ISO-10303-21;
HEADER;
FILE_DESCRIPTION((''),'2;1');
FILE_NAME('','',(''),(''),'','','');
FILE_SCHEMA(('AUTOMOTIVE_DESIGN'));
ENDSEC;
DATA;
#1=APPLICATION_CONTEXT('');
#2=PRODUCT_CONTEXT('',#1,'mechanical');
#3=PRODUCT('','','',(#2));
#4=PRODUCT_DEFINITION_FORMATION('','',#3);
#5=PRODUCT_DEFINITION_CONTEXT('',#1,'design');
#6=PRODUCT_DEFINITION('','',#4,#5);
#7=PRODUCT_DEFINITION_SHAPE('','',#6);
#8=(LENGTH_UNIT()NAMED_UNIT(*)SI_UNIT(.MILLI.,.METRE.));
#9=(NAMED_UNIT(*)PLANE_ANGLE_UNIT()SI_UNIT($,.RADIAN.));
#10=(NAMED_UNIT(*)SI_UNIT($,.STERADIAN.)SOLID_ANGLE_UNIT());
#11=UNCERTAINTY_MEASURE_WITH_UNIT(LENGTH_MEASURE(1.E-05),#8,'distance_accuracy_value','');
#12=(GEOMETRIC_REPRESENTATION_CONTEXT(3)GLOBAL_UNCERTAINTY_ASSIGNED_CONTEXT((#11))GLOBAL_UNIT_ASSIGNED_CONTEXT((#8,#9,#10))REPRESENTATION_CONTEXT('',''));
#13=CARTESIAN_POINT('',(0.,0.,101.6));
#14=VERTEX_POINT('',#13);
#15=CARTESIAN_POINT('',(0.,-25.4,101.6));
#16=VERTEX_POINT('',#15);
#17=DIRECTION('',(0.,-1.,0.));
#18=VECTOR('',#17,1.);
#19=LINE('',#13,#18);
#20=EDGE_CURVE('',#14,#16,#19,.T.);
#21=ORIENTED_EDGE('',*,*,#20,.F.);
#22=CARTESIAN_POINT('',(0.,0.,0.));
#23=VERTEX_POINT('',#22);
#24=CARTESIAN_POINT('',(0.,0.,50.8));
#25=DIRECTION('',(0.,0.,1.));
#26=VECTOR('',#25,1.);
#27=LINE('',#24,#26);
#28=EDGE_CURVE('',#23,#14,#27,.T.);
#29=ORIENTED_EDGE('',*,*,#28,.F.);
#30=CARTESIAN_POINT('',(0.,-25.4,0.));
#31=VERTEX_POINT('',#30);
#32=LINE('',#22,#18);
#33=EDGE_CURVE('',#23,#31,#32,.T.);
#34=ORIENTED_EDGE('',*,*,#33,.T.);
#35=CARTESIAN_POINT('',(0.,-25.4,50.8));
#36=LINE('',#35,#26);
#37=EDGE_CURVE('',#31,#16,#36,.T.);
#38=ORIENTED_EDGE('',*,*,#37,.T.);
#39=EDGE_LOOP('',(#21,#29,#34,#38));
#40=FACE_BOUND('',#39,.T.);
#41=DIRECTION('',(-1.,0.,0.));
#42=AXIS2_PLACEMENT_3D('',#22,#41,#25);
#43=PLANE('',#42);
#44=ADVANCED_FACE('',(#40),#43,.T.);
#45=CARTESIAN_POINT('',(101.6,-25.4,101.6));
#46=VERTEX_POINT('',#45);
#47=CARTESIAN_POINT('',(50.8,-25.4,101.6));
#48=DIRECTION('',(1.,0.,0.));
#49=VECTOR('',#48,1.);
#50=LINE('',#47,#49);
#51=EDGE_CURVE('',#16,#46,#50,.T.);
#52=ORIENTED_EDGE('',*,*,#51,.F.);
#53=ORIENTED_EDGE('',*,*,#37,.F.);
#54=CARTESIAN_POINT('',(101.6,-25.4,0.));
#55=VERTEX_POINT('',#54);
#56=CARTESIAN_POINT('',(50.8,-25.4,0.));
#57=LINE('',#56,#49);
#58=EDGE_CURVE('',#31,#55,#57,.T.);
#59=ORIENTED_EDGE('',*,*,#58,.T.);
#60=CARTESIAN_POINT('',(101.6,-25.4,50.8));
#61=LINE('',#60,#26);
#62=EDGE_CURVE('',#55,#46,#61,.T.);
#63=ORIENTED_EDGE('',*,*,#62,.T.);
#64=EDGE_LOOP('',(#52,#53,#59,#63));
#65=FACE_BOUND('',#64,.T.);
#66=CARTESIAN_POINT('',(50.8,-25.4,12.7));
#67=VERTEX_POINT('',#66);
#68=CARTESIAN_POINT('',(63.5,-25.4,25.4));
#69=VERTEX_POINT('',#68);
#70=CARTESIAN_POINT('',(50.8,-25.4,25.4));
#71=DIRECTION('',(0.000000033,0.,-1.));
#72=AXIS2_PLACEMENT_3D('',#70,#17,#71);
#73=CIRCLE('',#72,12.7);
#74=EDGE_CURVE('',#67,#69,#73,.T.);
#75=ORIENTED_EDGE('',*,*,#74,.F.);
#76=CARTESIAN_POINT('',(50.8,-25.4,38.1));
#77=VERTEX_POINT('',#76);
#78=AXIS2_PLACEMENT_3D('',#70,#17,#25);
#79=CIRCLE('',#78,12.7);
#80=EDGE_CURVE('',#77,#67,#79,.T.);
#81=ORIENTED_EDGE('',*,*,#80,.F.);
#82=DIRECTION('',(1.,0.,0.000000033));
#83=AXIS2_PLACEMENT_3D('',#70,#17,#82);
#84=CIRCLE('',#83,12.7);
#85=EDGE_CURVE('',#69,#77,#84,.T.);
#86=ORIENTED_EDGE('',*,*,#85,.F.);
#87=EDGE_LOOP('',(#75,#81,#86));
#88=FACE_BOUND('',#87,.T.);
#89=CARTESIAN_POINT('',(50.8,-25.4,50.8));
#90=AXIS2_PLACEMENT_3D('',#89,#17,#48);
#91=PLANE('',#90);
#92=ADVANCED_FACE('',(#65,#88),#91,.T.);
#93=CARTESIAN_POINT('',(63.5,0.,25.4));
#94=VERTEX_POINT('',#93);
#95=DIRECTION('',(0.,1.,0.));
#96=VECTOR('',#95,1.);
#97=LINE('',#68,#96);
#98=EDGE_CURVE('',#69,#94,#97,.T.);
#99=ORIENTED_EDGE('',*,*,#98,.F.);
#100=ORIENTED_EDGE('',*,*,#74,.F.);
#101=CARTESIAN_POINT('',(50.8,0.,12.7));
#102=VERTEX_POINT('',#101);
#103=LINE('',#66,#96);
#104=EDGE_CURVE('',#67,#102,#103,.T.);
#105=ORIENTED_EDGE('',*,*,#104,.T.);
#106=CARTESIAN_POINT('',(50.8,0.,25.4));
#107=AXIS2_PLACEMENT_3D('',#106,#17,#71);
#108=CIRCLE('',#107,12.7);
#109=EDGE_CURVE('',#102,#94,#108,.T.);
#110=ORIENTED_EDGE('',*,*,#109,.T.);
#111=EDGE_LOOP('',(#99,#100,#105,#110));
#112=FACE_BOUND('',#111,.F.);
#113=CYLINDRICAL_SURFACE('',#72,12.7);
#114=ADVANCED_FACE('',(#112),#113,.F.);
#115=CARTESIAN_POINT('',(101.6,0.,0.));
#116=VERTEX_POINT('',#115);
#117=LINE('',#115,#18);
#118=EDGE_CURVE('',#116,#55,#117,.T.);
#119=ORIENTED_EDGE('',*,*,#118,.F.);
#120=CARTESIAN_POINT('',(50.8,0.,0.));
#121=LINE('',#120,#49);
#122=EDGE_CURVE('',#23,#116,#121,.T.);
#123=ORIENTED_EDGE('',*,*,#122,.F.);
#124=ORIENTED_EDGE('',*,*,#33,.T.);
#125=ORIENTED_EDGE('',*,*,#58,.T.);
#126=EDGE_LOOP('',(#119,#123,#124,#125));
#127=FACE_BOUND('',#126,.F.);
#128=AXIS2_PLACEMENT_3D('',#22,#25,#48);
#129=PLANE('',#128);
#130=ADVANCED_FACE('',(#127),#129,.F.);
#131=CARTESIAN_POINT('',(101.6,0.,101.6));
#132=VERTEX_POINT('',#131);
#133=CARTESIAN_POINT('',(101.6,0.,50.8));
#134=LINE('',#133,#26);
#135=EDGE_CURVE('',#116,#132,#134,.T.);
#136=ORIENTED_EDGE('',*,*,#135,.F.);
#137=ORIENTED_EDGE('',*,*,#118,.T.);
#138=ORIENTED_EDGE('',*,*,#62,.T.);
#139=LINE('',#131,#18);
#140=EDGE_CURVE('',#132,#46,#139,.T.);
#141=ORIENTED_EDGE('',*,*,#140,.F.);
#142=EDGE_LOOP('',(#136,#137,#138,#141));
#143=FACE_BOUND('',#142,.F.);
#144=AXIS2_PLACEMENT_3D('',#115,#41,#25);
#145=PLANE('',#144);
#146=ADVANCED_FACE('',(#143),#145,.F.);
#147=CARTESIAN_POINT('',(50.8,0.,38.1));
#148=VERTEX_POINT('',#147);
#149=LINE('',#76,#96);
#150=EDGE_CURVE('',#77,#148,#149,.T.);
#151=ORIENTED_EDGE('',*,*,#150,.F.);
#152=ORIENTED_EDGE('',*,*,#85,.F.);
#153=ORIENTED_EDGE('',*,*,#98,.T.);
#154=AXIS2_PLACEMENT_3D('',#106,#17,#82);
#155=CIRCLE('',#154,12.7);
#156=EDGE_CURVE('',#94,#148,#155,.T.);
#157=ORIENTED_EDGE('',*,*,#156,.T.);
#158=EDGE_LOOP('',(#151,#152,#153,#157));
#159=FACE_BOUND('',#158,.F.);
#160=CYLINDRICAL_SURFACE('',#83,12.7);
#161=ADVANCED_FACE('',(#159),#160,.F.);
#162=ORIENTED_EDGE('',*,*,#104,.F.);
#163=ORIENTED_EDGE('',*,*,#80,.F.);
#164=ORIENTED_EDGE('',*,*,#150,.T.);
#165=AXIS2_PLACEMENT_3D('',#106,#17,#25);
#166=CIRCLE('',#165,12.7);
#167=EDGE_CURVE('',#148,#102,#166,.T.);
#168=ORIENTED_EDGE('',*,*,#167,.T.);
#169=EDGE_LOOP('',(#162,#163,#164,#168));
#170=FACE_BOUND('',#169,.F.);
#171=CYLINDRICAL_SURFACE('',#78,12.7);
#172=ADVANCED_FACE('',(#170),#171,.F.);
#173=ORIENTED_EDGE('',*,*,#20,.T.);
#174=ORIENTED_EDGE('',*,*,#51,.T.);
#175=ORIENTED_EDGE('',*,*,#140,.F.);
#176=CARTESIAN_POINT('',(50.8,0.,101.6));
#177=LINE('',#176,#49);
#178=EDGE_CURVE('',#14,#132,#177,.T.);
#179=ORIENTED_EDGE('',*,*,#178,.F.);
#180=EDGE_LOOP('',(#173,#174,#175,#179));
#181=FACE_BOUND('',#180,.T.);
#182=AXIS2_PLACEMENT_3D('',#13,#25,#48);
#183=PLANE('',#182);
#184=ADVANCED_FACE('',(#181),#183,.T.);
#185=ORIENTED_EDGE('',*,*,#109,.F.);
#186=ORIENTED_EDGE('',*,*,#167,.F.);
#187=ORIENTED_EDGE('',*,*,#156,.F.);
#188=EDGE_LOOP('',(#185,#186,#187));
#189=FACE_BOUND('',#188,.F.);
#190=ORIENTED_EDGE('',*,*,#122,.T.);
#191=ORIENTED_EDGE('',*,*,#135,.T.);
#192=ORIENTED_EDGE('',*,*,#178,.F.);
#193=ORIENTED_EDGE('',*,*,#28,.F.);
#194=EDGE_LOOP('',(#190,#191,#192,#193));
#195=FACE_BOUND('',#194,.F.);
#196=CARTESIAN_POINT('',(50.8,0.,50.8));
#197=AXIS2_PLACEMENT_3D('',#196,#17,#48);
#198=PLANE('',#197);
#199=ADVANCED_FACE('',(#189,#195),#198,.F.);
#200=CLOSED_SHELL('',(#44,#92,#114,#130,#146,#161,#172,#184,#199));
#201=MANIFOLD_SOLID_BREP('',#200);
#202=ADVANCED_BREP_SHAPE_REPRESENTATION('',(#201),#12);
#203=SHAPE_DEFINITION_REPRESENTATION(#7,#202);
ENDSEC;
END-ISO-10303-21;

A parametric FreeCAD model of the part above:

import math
import FreeCAD as App
import Part
import Sketcher

V = App.Vector
Q = App.Units.Quantity

doc = App.newDocument("Part")
body = doc.addObject("PartDesign::Body", "Body")

sketch1 = body.newObject("Sketcher::SketchObject", "Sketch")
sketch1.AttachmentSupport = (doc.getObject("XZ_Plane"), [""])
sketch1.MapMode = "FlatFace"
sketch1.addGeometry(Part.LineSegment(V(0, 102, 0), V(0, 0, 0)), False)
sketch1.addGeometry(Part.LineSegment(V(0, 0, 0), V(102, 0, 0)), False)
sketch1.addGeometry(Part.LineSegment(V(102, 0, 0), V(102, 102, 0)), False)
sketch1.addGeometry(Part.LineSegment(V(102, 102, 0), V(0, 102, 0)), False)
sketch1.addConstraint(Sketcher.Constraint("Coincident", 0, 2, 1, 1))
sketch1.addConstraint(Sketcher.Constraint("Coincident", 1, 2, 2, 1))
sketch1.addConstraint(Sketcher.Constraint("Coincident", 2, 2, 3, 1))
sketch1.addConstraint(Sketcher.Constraint("Coincident", 3, 2, 0, 1))
sketch1.addConstraint(Sketcher.Constraint("Vertical", 0))
sketch1.addConstraint(Sketcher.Constraint("Horizontal", 1))
sketch1.addConstraint(Sketcher.Constraint("Vertical", 2))
sketch1.addConstraint(Sketcher.Constraint("Horizontal", 3))
sketch1.addConstraint(Sketcher.Constraint("Coincident", 0, 2, -1, 1))
sketch1.addConstraint(Sketcher.Constraint("Equal", 3, 0))
sketch1.addConstraint(Sketcher.Constraint("DistanceX", 1, 1, 1, 2, Q("4 in")))
pad1 = body.newObject("PartDesign::Pad", "Pad")
pad1.Profile = sketch1
pad1.Length = Q("1 in")

sketch2 = body.newObject("Sketcher::SketchObject", "Sketch001")
sketch2.AttachmentSupport = (doc.getObject("XZ_Plane"), [""])
sketch2.MapMode = "FlatFace"
sketch2.AttachmentOffset = App.Placement(V(0, 0, 1 * 25.4), App.Rotation())
sketch2.addGeometry(Part.ArcOfCircle(Part.Circle(V(51, 25, 0), V(0, 0, 1), 13), math.radians(0), math.radians(90)), False)
sketch2.addGeometry(Part.ArcOfCircle(Part.Circle(V(51, 25, 0), V(0, 0, 1), 13), math.radians(90), math.radians(270)), False)
sketch2.addGeometry(Part.ArcOfCircle(Part.Circle(V(51, 25, 0), V(0, 0, 1), 13), math.radians(-90), math.radians(0)), False)
sketch2.addConstraint(Sketcher.Constraint("Tangent", 0, 2, 1, 1))
sketch2.addConstraint(Sketcher.Constraint("Tangent", 1, 2, 2, 1))
sketch2.addConstraint(Sketcher.Constraint("Tangent", 2, 2, 0, 1))
sketch2.addConstraint(Sketcher.Constraint("Horizontal", 1, 3, 2, 2))
sketch2.addConstraint(Sketcher.Constraint("Vertical", 2, 3, 0, 2))
sketch2.addConstraint(Sketcher.Constraint("Vertical", 0, 2, 1, 2))
sketch2.addConstraint(Sketcher.Constraint("Radius", 0, Q("0.5 in")))
sketch2.addConstraint(Sketcher.Constraint("DistanceX", -1, 1, 0, 3, Q("2 in")))
sketch2.addConstraint(Sketcher.Constraint("DistanceY", -1, 1, 0, 3, Q("1 in")))
pocket1 = body.newObject("PartDesign::Pocket", "Pocket")
pocket1.Profile = sketch2
pocket1.Type = "ThroughAll"

doc.recompute()
